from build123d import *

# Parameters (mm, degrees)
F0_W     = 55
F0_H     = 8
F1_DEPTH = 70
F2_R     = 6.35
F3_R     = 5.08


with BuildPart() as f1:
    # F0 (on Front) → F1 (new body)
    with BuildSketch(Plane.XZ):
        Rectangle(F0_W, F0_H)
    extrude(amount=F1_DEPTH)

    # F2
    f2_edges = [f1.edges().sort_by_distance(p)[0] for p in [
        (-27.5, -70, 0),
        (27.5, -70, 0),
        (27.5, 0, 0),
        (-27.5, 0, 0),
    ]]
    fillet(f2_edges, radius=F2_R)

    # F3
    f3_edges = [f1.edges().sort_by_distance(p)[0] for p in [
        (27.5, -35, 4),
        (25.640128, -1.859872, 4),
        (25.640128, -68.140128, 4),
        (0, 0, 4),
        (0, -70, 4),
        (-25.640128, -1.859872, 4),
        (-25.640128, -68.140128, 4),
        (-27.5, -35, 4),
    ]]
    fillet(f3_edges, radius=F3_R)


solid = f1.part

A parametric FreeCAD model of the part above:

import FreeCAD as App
import Part
import Sketcher

V = App.Vector
Q = App.Units.Quantity


def edges_at(feature, points):
    """Names of the edges that pass closest to the given points."""
    edges = feature.Shape.Edges
    near = lambda p: min(range(len(edges)), key=lambda i: edges[i].distToShape(Part.Vertex(*p))[0])
    return sorted({f"Edge{near(p) + 1}" for p in points})


def add_polygon(sketch, points):
    """Adds a closed chain of lines whose ends are joined by coincident constraints."""
    first, n = sketch.GeometryCount, len(points)
    for a, b in zip(points, points[1:] + points[:1]):
        sketch.addGeometry(Part.LineSegment(App.Vector(*a, 0), App.Vector(*b, 0)), False)
    for i in range(n):
        sketch.addConstraint(Sketcher.Constraint("Coincident", first + i, 2, first + (i + 1) % n, 1))

doc = App.newDocument("Part")
body = doc.addObject("PartDesign::Body", "Body")

# Sketch on XZ plane
sketch1 = body.newObject("Sketcher::SketchObject", "Sketch")
sketch1.AttachmentSupport = (doc.getObject("XZ_Plane"), [""])
sketch1.MapMode = "FlatFace"
add_polygon(sketch1, [(-27.5, 4), (-27.5, -4), (27.5, -4), (27.5, 4)])  # lines 0-3
sketch1.addConstraint(Sketcher.Constraint("Vertical", 0))
sketch1.addConstraint(Sketcher.Constraint("Horizontal", 1))
sketch1.addConstraint(Sketcher.Constraint("Vertical", 2))
sketch1.addConstraint(Sketcher.Constraint("Horizontal", 3))
sketch1.addConstraint(Sketcher.Constraint("Symmetric", 0, 2, 2, 2, -1, 1))
sketch1.addConstraint(Sketcher.Constraint("DistanceX", 1, 1, 1, 2, Q("55 mm")))
sketch1.addConstraint(Sketcher.Constraint("DistanceY", 0, 2, 0, 1, Q("8 mm")))
pad1 = body.newObject("PartDesign::Pad", "Pad")
pad1.Profile = sketch1
pad1.Length = 70
doc.recompute()

fillet = body.newObject("PartDesign::Fillet", "Fillet")
fillet.Base = (pad1, edges_at(pad1, [
    (-27.5, -70, 0),
    (27.5, -70, 0),
    (27.5, 0, 0),
    (-27.5, 0, 0),
]))
fillet.Radius = 6.35
doc.recompute()

fillet2 = body.newObject("PartDesign::Fillet", "Fillet001")
fillet2.Base = (fillet, edges_at(fillet, [
    (27.5, -35, 4),
    (25.64, -1.86, 4),
    (25.64, -68.14, 4),
    (0, 0, 4),
    (0, -70, 4),
    (-25.64, -1.86, 4),
    (-25.64, -68.14, 4),
    (-27.5, -35, 4),
]))
fillet2.Radius = 5.08

doc.recompute()
